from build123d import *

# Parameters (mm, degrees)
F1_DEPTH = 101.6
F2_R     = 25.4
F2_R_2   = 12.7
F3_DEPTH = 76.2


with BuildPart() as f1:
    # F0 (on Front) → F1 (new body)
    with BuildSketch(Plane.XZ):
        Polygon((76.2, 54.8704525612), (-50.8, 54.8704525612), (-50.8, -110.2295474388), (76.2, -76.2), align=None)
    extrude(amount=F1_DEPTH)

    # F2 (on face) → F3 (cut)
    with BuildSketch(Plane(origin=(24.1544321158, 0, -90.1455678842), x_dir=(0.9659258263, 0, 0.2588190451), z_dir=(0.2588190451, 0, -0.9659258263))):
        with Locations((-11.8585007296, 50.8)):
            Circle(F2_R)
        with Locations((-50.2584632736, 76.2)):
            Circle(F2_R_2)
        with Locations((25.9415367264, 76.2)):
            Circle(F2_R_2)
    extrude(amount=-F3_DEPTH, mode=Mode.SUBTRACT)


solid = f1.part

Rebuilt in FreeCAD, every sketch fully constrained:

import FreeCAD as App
import Part
import Sketcher
Q = App.Units.Quantity

doc = App.newDocument("Part")
params = doc.addObject("Spreadsheet::Sheet", "Params")
for row, (alias, value) in enumerate([
    ("sketch1_width", "5 in"),
    ("sketch1_height", "6.5 in"),
    ("pad1_length", "4 in"),
    ("sketch2_diameter", "2 in"),
    ("sketch2_diameter2", "1 in"),
    ("pocket1_length", "3 in"),
], start=1):
    params.set(f"A{row}", alias)
    params.set(f"B{row}", "=" + value)
    params.setAlias(f"B{row}", alias)

body = doc.addObject("PartDesign::Body", "Body")

# Sketch on XZ plane
sketch1 = body.newObject("Sketcher::SketchObject", "Sketch")
sketch1.AttachmentSupport = (doc.getObject("XZ_Plane"), [""])
sketch1.MapMode = "FlatFace"
sketch1.addGeometry([
    Part.LineSegment(App.Vector(76, 55, 0), App.Vector(-51, 55, 0)),
    Part.LineSegment(App.Vector(-51, 55, 0), App.Vector(-51, -110, 0)),
    Part.LineSegment(App.Vector(-51, -110, 0), App.Vector(76, -76, 0)),
    Part.LineSegment(App.Vector(76, -76, 0), App.Vector(76, 55, 0)),
], False)
sketch1.addConstraint([
    Sketcher.Constraint("Coincident", 0, 2, 1, 1),
    Sketcher.Constraint("Coincident", 1, 2, 2, 1),
    Sketcher.Constraint("Coincident", 2, 2, 3, 1),
    Sketcher.Constraint("Coincident", 3, 2, 0, 1),
    Sketcher.Constraint("Horizontal", 0),
    Sketcher.Constraint("Vertical", 1),
    Sketcher.Constraint("Vertical", 3),
    Sketcher.Constraint("DistanceX", 0, 2, 0, 1, Q("5 in")),
    Sketcher.Constraint("DistanceY", 1, 2, 1, 1, Q("6.5 in")),
    Sketcher.Constraint("DistanceX", 0, 2, -1, 1, Q("2 in")),
    Sketcher.Constraint("DistanceY", 2, 2, -1, 1, Q("3 in")),
    Sketcher.Constraint("Angle", 2, Q("15 deg")),
])
sketch1.setExpression("Constraints[7]", "Params.sketch1_width")
sketch1.setExpression("Constraints[8]", "Params.sketch1_height")
pad1 = body.newObject("PartDesign::Pad", "Pad")
pad1.Profile = sketch1
pad1.setExpression("Length", "Params.pad1_length")

# Sketch on an angled plane
sketch2 = body.newObject("Sketcher::SketchObject", "Sketch001")
sketch2.Placement = App.Placement(App.Vector(24.154432, 0, -90.145568), App.Rotation(App.Vector(0.965925826, 0, 0.258819045), App.Vector(0, -0.999999999, 0), App.Vector(0.258819045, 0, -0.965925826), "ZXY"))
sketch2.addGeometry([
    Part.Circle(App.Vector(-12, 51, 0), App.Vector(0, 0, 1), 25),
    Part.Circle(App.Vector(-50, 76, 0), App.Vector(0, 0, 1), 13),
    Part.Circle(App.Vector(26, 76, 0), App.Vector(0, 0, 1), 13),
], False)
sketch2.addConstraint([
    Sketcher.Constraint("Equal", 1, 2),
    Sketcher.Constraint("Horizontal", 1, 3, 2, 3),
    Sketcher.Constraint("Diameter", 0, Q("2 in")),
    Sketcher.Constraint("Diameter", 1, Q("1 in")),
    Sketcher.Constraint("DistanceY", -1, 1, 0, 3, Q("2 in")),
    Sketcher.Constraint("DistanceY", -1, 1, 1, 3, Q("3 in")),
    Sketcher.Constraint("DistanceX", 1, 3, 2, 3, Q("3 in")),
    Sketcher.Constraint("DistanceX", 0, 3, -1, 1, 11.858501),
    Sketcher.Constraint("DistanceX", 1, 3, -1, 1, 50.258463),
])
sketch2.setExpression("Constraints[2]", "Params.sketch2_diameter")
sketch2.setExpression("Constraints[3]", "Params.sketch2_diameter2")
pocket1 = body.newObject("PartDesign::Pocket", "Pocket")
pocket1.Profile = sketch2
pocket1.setExpression("Length", "Params.pocket1_length")

doc.recompute()
